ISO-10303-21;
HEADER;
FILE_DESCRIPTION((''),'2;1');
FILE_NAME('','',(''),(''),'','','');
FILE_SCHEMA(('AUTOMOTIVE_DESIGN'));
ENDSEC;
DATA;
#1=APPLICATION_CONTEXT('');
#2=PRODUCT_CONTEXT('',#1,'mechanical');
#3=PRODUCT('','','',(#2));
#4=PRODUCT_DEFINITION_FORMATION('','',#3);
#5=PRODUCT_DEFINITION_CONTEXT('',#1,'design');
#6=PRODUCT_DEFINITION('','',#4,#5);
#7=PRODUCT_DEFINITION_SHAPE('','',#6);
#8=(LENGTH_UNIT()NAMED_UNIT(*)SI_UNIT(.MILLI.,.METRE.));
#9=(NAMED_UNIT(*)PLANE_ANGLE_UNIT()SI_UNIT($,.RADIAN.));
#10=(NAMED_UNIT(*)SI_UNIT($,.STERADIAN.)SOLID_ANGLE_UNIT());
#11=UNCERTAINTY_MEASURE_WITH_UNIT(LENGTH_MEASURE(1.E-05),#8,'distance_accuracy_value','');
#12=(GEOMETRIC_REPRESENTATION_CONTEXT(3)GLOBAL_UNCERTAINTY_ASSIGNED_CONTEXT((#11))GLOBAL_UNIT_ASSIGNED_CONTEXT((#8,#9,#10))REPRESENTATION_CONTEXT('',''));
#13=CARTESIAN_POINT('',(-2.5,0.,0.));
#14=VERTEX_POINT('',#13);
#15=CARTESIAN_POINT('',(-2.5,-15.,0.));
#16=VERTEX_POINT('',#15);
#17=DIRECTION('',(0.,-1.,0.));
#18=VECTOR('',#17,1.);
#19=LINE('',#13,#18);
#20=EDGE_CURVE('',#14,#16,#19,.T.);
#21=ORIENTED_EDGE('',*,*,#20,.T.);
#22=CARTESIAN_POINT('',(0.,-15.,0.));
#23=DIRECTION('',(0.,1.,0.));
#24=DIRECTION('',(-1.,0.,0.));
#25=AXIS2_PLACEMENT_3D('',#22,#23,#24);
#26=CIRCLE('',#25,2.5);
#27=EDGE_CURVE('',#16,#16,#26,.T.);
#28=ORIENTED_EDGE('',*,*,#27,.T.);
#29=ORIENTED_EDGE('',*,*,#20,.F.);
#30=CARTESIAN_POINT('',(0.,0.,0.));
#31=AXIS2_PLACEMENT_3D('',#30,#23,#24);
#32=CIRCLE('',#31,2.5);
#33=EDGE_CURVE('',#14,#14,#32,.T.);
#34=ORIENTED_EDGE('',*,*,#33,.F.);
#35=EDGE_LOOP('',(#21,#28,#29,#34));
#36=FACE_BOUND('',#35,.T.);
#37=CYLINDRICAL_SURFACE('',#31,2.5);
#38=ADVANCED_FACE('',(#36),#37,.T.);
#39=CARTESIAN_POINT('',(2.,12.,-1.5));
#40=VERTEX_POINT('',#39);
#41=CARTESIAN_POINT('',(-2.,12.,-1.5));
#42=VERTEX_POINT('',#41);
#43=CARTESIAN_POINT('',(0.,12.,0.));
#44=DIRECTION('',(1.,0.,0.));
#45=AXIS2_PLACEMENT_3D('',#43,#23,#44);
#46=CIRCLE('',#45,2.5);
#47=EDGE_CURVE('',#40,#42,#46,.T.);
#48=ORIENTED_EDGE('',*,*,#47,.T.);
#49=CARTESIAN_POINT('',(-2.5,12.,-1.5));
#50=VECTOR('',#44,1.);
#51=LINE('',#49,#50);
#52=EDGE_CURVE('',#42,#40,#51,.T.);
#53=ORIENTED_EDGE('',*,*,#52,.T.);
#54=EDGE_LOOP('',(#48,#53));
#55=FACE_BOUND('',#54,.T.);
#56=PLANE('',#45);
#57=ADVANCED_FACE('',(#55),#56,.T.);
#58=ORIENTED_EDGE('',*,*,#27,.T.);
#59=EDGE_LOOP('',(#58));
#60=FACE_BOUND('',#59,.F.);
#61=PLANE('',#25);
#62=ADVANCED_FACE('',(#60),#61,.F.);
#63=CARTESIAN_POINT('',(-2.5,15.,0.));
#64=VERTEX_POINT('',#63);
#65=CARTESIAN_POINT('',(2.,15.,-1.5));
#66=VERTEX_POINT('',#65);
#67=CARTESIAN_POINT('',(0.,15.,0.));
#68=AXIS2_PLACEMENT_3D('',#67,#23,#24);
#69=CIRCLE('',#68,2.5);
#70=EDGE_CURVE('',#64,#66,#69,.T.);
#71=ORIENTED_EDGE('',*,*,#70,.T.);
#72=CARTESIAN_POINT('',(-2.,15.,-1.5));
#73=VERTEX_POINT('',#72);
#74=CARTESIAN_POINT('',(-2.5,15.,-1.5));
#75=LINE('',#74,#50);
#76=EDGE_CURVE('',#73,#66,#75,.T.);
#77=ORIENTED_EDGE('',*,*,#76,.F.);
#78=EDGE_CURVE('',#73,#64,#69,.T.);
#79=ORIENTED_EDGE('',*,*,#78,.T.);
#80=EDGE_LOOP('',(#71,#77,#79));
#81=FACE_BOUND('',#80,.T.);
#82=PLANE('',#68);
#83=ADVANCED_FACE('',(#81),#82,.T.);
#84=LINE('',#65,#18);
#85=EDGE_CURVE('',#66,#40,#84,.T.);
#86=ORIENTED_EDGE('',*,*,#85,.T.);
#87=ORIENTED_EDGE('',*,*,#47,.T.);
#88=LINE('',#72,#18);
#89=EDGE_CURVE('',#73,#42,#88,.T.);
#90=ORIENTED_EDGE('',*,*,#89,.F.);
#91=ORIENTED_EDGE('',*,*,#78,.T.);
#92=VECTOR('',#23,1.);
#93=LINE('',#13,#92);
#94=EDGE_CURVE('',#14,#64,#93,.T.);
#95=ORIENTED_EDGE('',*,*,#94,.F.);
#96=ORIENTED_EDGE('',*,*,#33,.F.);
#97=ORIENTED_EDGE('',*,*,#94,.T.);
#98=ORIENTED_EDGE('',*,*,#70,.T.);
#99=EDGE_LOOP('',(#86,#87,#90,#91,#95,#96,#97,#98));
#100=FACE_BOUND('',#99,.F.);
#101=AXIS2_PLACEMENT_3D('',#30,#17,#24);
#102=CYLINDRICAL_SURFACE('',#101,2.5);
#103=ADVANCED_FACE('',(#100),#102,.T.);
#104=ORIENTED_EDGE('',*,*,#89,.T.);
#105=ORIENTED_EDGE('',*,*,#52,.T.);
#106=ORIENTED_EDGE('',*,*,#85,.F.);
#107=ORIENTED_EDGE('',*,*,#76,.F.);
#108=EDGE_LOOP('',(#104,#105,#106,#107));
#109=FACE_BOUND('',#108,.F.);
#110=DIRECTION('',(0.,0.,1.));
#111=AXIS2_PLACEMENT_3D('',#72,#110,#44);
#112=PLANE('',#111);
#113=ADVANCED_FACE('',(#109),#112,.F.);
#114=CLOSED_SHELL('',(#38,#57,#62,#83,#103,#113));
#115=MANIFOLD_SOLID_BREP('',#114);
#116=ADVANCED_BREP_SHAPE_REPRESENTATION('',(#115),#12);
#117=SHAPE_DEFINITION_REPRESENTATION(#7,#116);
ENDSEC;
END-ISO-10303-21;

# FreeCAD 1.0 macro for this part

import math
import FreeCAD as App
import Part
import Sketcher
Q = App.Units.Quantity

doc = App.newDocument("Part")
body = doc.addObject("PartDesign::Body", "Body")

sketch1 = body.newObject("Sketcher::SketchObject", "Sketch")
sketch1.AttachmentSupport = (doc.getObject("XZ_Plane"), [""])
sketch1.MapMode = "FlatFace"
sketch1.addGeometry(Part.Circle(App.Vector(0, 0, 0), App.Vector(0, 0, 1), 2.5), False)
sketch1.addConstraint([
    Sketcher.Constraint("Coincident", 0, 3, -1, 1),
    Sketcher.Constraint("Diameter", 0, Q("5 mm")),
])
pad1 = body.newObject("PartDesign::Pad", "Pad")
pad1.Profile = sketch1
pad1.Length = 30
pad1.Midplane = True

sketch2 = body.newObject("Sketcher::SketchObject", "Sketch001")
sketch2.AttachmentSupport = (doc.getObject("XZ_Plane"), [""])
sketch2.MapMode = "FlatFace"
sketch2.AttachmentOffset = App.Placement(App.Vector(0, 0, -15), App.Rotation())
sketch2.addGeometry([
    Part.LineSegment(App.Vector(-2, -1.5, 0), App.Vector(2, -1.5, 0)),
    Part.ArcOfCircle(Part.Circle(App.Vector(0, 0, 0), App.Vector(0, 0, 1), 2.5), math.radians(-143.130102), math.radians(-36.869898)),
], False)
sketch2.addConstraint([
    Sketcher.Constraint("Coincident", 0, 1, 1, 1),
    Sketcher.Constraint("Coincident", 1, 2, 0, 2),
    Sketcher.Constraint("Horizontal", 0),
    Sketcher.Constraint("Coincident", 1, 3, -1, 1),
    Sketcher.Constraint("Radius", 1, Q("2.5 mm")),
    Sketcher.Constraint("DistanceX", 0, 1, 0, 2, Q("4 mm")),
])
pocket1 = body.newObject("PartDesign::Pocket", "Pocket")
pocket1.Profile = sketch2
pocket1.Length = 3
pocket1.Reversed = True

doc.recompute()
